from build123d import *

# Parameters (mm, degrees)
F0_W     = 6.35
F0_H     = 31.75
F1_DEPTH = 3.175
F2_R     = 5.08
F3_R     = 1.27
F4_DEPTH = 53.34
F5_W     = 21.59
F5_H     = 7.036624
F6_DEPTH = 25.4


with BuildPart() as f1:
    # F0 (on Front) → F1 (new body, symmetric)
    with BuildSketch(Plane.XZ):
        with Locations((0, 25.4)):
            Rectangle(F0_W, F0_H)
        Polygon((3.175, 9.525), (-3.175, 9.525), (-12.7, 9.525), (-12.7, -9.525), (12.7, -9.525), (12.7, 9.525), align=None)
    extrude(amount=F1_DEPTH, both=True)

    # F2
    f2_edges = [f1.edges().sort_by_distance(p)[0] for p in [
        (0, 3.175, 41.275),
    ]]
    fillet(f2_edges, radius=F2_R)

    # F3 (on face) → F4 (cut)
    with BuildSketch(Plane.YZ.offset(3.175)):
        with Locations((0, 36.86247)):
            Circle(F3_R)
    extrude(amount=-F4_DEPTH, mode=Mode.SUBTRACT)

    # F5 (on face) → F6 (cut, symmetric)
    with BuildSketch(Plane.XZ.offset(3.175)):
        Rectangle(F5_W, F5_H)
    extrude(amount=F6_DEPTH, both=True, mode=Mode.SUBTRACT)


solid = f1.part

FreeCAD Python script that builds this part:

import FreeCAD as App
import Part
import Sketcher

V = App.Vector
Q = App.Units.Quantity


def edges_at(feature, points):
    """Names of the edges that pass closest to the given points."""
    edges = feature.Shape.Edges
    near = lambda p: min(range(len(edges)), key=lambda i: edges[i].distToShape(Part.Vertex(*p))[0])
    return sorted({f"Edge{near(p) + 1}" for p in points})


def add_polygon(sketch, points):
    """Adds a closed chain of lines whose ends are joined by coincident constraints."""
    first, n = sketch.GeometryCount, len(points)
    for a, b in zip(points, points[1:] + points[:1]):
        sketch.addGeometry(Part.LineSegment(App.Vector(*a, 0), App.Vector(*b, 0)), False)
    for i in range(n):
        sketch.addConstraint(Sketcher.Constraint("Coincident", first + i, 2, first + (i + 1) % n, 1))

doc = App.newDocument("Part")
body = doc.addObject("PartDesign::Body", "Body")

sketch1 = doc.addObject("Sketcher::SketchObject", "Sketch")
body.addObject(sketch1)
sketch1.AttachmentSupport = (doc.XZ_Plane, [""])
sketch1.MapMode = "FlatFace"
add_polygon(sketch1, [(-3, 41), (-3, 10), (-13, 10), (-13, -10), (13, -10), (13, 10), (3, 10), (3, 41)])
sketch1.addConstraint(Sketcher.Constraint("Vertical", 0))
sketch1.addConstraint(Sketcher.Constraint("Horizontal", 1))
sketch1.addConstraint(Sketcher.Constraint("Vertical", 2))
sketch1.addConstraint(Sketcher.Constraint("Horizontal", 3))
sketch1.addConstraint(Sketcher.Constraint("Vertical", 4))
sketch1.addConstraint(Sketcher.Constraint("Horizontal", 5))
sketch1.addConstraint(Sketcher.Constraint("Vertical", 6))
sketch1.addConstraint(Sketcher.Constraint("Horizontal", 7))
sketch1.addConstraint(Sketcher.Constraint("Symmetric", 1, 2, 3, 2, -1, 1))
sketch1.addConstraint(Sketcher.Constraint("Symmetric", 0, 2, 5, 2, -2))
sketch1.addConstraint(Sketcher.Constraint("DistanceX", 3, 1, 3, 2, Q("1 in")))
sketch1.addConstraint(Sketcher.Constraint("DistanceY", 3, 2, 6, 2, Q("2 in")))
sketch1.addConstraint(Sketcher.Constraint("DistanceX", 7, 2, 7, 1, Q("0.25 in")))
sketch1.addConstraint(Sketcher.Constraint("DistanceY", 0, 2, 0, 1, Q("1.25 in")))
pad1 = doc.addObject("PartDesign::Pad", "Pad")
body.addObject(pad1)
pad1.Profile = sketch1
pad1.Length = Q("0.25 in")
pad1.Midplane = True
doc.recompute()

fillet = doc.addObject("PartDesign::Fillet", "Fillet")
body.addObject(fillet)
fillet.Base = (pad1, edges_at(pad1, [(0, 3.175, 41.275)]))
fillet.Radius = Q("0.2 in")

sketch2 = doc.addObject("Sketcher::SketchObject", "Sketch001")
body.addObject(sketch2)
sketch2.AttachmentSupport = (doc.YZ_Plane, [""])
sketch2.MapMode = "FlatFace"
sketch2.AttachmentOffset = App.Placement(V(0, 0, 0.125 * 25.4), App.Rotation())
sketch2.addGeometry(Part.Circle(V(0, 36.9, 0), V(0, 0, 1), 1.3), False)
sketch2.addConstraint(Sketcher.Constraint("PointOnObject", 0, 3, -2))
sketch2.addConstraint(Sketcher.Constraint("Diameter", 0, Q("0.1 in")))
sketch2.addConstraint(Sketcher.Constraint("DistanceY", -1, 1, 0, 3, 36.86247))
pocket1 = doc.addObject("PartDesign::Pocket", "Pocket")
body.addObject(pocket1)
pocket1.Profile = sketch2
pocket1.Length = Q("2.1 in")

sketch3 = doc.addObject("Sketcher::SketchObject", "Sketch002")
body.addObject(sketch3)
sketch3.AttachmentSupport = (doc.XZ_Plane, [""])
sketch3.MapMode = "FlatFace"
sketch3.AttachmentOffset = App.Placement(V(0, 0, 0.125 * 25.4), App.Rotation())
add_polygon(sketch3, [(-11, 4), (-11, -4), (11, -4), (11, 4)])
sketch3.addConstraint(Sketcher.Constraint("Vertical", 0))
sketch3.addConstraint(Sketcher.Constraint("Horizontal", 1))
sketch3.addConstraint(Sketcher.Constraint("Vertical", 2))
sketch3.addConstraint(Sketcher.Constraint("Horizontal", 3))
sketch3.addConstraint(Sketcher.Constraint("Symmetric", 0, 2, 2, 2, -1, 1))
sketch3.addConstraint(Sketcher.Constraint("DistanceX", 1, 1, 1, 2, Q("0.85 in")))
sketch3.addConstraint(Sketcher.Constraint("DistanceY", 0, 2, 0, 1, 7.036624))
pocket2 = doc.addObject("PartDesign::Pocket", "Pocket001")
body.addObject(pocket2)
pocket2.Profile = sketch3
pocket2.Length = Q("2 in")
pocket2.Midplane = True

doc.recompute()
